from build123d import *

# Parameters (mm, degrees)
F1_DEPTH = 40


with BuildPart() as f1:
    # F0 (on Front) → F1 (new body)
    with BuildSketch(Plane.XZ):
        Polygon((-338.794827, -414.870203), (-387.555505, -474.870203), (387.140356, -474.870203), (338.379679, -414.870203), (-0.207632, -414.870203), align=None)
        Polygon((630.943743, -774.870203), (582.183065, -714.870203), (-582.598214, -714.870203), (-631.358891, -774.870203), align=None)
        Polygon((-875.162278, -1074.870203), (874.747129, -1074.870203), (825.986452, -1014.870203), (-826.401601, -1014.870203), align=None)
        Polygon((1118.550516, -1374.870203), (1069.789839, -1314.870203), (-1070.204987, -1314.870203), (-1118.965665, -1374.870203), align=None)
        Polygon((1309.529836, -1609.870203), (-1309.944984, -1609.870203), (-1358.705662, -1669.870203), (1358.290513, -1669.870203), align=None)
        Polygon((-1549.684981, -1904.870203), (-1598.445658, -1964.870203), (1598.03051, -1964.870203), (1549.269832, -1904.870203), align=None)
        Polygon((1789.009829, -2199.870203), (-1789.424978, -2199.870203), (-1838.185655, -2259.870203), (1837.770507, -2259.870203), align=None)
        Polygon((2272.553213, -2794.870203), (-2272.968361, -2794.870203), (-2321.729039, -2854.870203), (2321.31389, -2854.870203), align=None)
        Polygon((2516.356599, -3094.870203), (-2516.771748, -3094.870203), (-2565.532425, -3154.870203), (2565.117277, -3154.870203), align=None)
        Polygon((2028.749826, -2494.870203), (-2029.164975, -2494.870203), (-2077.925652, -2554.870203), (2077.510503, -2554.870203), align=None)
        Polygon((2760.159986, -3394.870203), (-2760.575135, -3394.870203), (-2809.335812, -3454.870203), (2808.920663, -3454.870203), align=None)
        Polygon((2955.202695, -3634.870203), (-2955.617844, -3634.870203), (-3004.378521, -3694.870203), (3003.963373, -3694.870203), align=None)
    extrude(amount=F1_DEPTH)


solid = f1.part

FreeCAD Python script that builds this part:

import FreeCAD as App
import Part
import Sketcher

V = App.Vector
Q = App.Units.Quantity

doc = App.newDocument("Part")
body = doc.addObject("PartDesign::Body", "Body")
body.AllowCompound = True

sketch1 = body.newObject("Sketcher::SketchObject", "Sketch")
sketch1.AttachmentSupport = (doc.getObject("XZ_Plane"), [""])
sketch1.MapMode = "FlatFace"
sketch1.addGeometry(Part.LineSegment(V(-339, -415, 0), V(-388, -475, 0)), False)
sketch1.addGeometry(Part.LineSegment(V(-388, -475, 0), V(387, -475, 0)), False)
sketch1.addGeometry(Part.LineSegment(V(387, -475, 0), V(338, -415, 0)), False)
sketch1.addGeometry(Part.LineSegment(V(338, -415, 0), V(-339, -415, 0)), False)
sketch1.addGeometry(Part.LineSegment(V(631, -775, 0), V(582, -715, 0)), False)
sketch1.addGeometry(Part.LineSegment(V(582, -715, 0), V(-583, -715, 0)), False)
sketch1.addGeometry(Part.LineSegment(V(-583, -715, 0), V(-631, -775, 0)), False)
sketch1.addGeometry(Part.LineSegment(V(-631, -775, 0), V(631, -775, 0)), False)
sketch1.addGeometry(Part.LineSegment(V(-875, -1075, 0), V(875, -1075, 0)), False)
sketch1.addGeometry(Part.LineSegment(V(875, -1075, 0), V(826, -1015, 0)), False)
sketch1.addGeometry(Part.LineSegment(V(826, -1015, 0), V(-826, -1015, 0)), False)
sketch1.addGeometry(Part.LineSegment(V(-826, -1015, 0), V(-875, -1075, 0)), False)
sketch1.addGeometry(Part.LineSegment(V(1119, -1375, 0), V(1070, -1315, 0)), False)
sketch1.addGeometry(Part.LineSegment(V(1070, -1315, 0), V(-1070, -1315, 0)), False)
sketch1.addGeometry(Part.LineSegment(V(-1070, -1315, 0), V(-1119, -1375, 0)), False)
sketch1.addGeometry(Part.LineSegment(V(-1119, -1375, 0), V(1119, -1375, 0)), False)
sketch1.addGeometry(Part.LineSegment(V(1310, -1610, 0), V(-1310, -1610, 0)), False)
sketch1.addGeometry(Part.LineSegment(V(-1310, -1610, 0), V(-1359, -1670, 0)), False)
sketch1.addGeometry(Part.LineSegment(V(-1359, -1670, 0), V(1358, -1670, 0)), False)
sketch1.addGeometry(Part.LineSegment(V(1358, -1670, 0), V(1310, -1610, 0)), False)
sketch1.addGeometry(Part.LineSegment(V(-1550, -1905, 0), V(-1598, -1965, 0)), False)
sketch1.addGeometry(Part.LineSegment(V(-1598, -1965, 0), V(1598, -1965, 0)), False)
sketch1.addGeometry(Part.LineSegment(V(1598, -1965, 0), V(1549, -1905, 0)), False)
sketch1.addGeometry(Part.LineSegment(V(1549, -1905, 0), V(-1550, -1905, 0)), False)
sketch1.addGeometry(Part.LineSegment(V(1789, -2200, 0), V(-1789, -2200, 0)), False)
sketch1.addGeometry(Part.LineSegment(V(-1789, -2200, 0), V(-1838, -2260, 0)), False)
sketch1.addGeometry(Part.LineSegment(V(-1838, -2260, 0), V(1838, -2260, 0)), False)
sketch1.addGeometry(Part.LineSegment(V(1838, -2260, 0), V(1789, -2200, 0)), False)
sketch1.addGeometry(Part.LineSegment(V(2273, -2795, 0), V(-2273, -2795, 0)), False)
sketch1.addGeometry(Part.LineSegment(V(-2273, -2795, 0), V(-2322, -2855, 0)), False)
sketch1.addGeometry(Part.LineSegment(V(-2322, -2855, 0), V(2321, -2855, 0)), False)
sketch1.addGeometry(Part.LineSegment(V(2321, -2855, 0), V(2273, -2795, 0)), False)
sketch1.addGeometry(Part.LineSegment(V(2516, -3095, 0), V(-2517, -3095, 0)), False)
sketch1.addGeometry(Part.LineSegment(V(-2517, -3095, 0), V(-2566, -3155, 0)), False)
sketch1.addGeometry(Part.LineSegment(V(-2566, -3155, 0), V(2565, -3155, 0)), False)
sketch1.addGeometry(Part.LineSegment(V(2565, -3155, 0), V(2516, -3095, 0)), False)
sketch1.addGeometry(Part.LineSegment(V(2029, -2495, 0), V(-2029, -2495, 0)), False)
sketch1.addGeometry(Part.LineSegment(V(-2029, -2495, 0), V(-2078, -2555, 0)), False)
sketch1.addGeometry(Part.LineSegment(V(-2078, -2555, 0), V(2078, -2555, 0)), False)
sketch1.addGeometry(Part.LineSegment(V(2078, -2555, 0), V(2029, -2495, 0)), False)
sketch1.addGeometry(Part.LineSegment(V(2760, -3395, 0), V(-2761, -3395, 0)), False)
sketch1.addGeometry(Part.LineSegment(V(-2761, -3395, 0), V(-2809, -3455, 0)), False)
sketch1.addGeometry(Part.LineSegment(V(-2809, -3455, 0), V(2809, -3455, 0)), False)
sketch1.addGeometry(Part.LineSegment(V(2809, -3455, 0), V(2760, -3395, 0)), False)
sketch1.addGeometry(Part.LineSegment(V(2955, -3635, 0), V(-2956, -3635, 0)), False)
sketch1.addGeometry(Part.LineSegment(V(-2956, -3635, 0), V(-3004, -3695, 0)), False)
sketch1.addGeometry(Part.LineSegment(V(-3004, -3695, 0), V(3004, -3695, 0)), False)
sketch1.addGeometry(Part.LineSegment(V(3004, -3695, 0), V(2955, -3635, 0)), False)
sketch1.addConstraint(Sketcher.Constraint("Coincident", 0, 2, 1, 1))
sketch1.addConstraint(Sketcher.Constraint("Coincident", 1, 2, 2, 1))
sketch1.addConstraint(Sketcher.Constraint("Coincident", 2, 2, 3, 1))
sketch1.addConstraint(Sketcher.Constraint("Coincident", 3, 2, 0, 1))
sketch1.addConstraint(Sketcher.Constraint("Coincident", 4, 2, 5, 1))
sketch1.addConstraint(Sketcher.Constraint("Coincident", 5, 2, 6, 1))
sketch1.addConstraint(Sketcher.Constraint("Coincident", 6, 2, 7, 1))
sketch1.addConstraint(Sketcher.Constraint("Coincident", 7, 2, 4, 1))
sketch1.addConstraint(Sketcher.Constraint("Coincident", 8, 2, 9, 1))
sketch1.addConstraint(Sketcher.Constraint("Coincident", 9, 2, 10, 1))
sketch1.addConstraint(Sketcher.Constraint("Coincident", 10, 2, 11, 1))
sketch1.addConstraint(Sketcher.Constraint("Coincident", 11, 2, 8, 1))
sketch1.addConstraint(Sketcher.Constraint("Coincident", 12, 2, 13, 1))
sketch1.addConstraint(Sketcher.Constraint("Coincident", 13, 2, 14, 1))
sketch1.addConstraint(Sketcher.Constraint("Coincident", 14, 2, 15, 1))
sketch1.addConstraint(Sketcher.Constraint("Coincident", 15, 2, 12, 1))
sketch1.addConstraint(Sketcher.Constraint("Coincident", 16, 2, 17, 1))
sketch1.addConstraint(Sketcher.Constraint("Coincident", 17, 2, 18, 1))
sketch1.addConstraint(Sketcher.Constraint("Coincident", 18, 2, 19, 1))
sketch1.addConstraint(Sketcher.Constraint("Coincident", 19, 2, 16, 1))
sketch1.addConstraint(Sketcher.Constraint("Coincident", 20, 2, 21, 1))
sketch1.addConstraint(Sketcher.Constraint("Coincident", 21, 2, 22, 1))
sketch1.addConstraint(Sketcher.Constraint("Coincident", 22, 2, 23, 1))
sketch1.addConstraint(Sketcher.Constraint("Coincident", 23, 2, 20, 1))
sketch1.addConstraint(Sketcher.Constraint("Coincident", 24, 2, 25, 1))
sketch1.addConstraint(Sketcher.Constraint("Coincident", 25, 2, 26, 1))
sketch1.addConstraint(Sketcher.Constraint("Coincident", 26, 2, 27, 1))
sketch1.addConstraint(Sketcher.Constraint("Coincident", 27, 2, 24, 1))
sketch1.addConstraint(Sketcher.Constraint("Coincident", 28, 2, 29, 1))
sketch1.addConstraint(Sketcher.Constraint("Coincident", 29, 2, 30, 1))
sketch1.addConstraint(Sketcher.Constraint("Coincident", 30, 2, 31, 1))
sketch1.addConstraint(Sketcher.Constraint("Coincident", 31, 2, 28, 1))
sketch1.addConstraint(Sketcher.Constraint("Coincident", 32, 2, 33, 1))
sketch1.addConstraint(Sketcher.Constraint("Coincident", 33, 2, 34, 1))
sketch1.addConstraint(Sketcher.Constraint("Coincident", 34, 2, 35, 1))
sketch1.addConstraint(Sketcher.Constraint("Coincident", 35, 2, 32, 1))
sketch1.addConstraint(Sketcher.Constraint("Coincident", 36, 2, 37, 1))
sketch1.addConstraint(Sketcher.Constraint("Coincident", 37, 2, 38, 1))
sketch1.addConstraint(Sketcher.Constraint("Coincident", 38, 2, 39, 1))
sketch1.addConstraint(Sketcher.Constraint("Coincident", 39, 2, 36, 1))
sketch1.addConstraint(Sketcher.Constraint("Coincident", 40, 2, 41, 1))
sketch1.addConstraint(Sketcher.Constraint("Coincident", 41, 2, 42, 1))
sketch1.addConstraint(Sketcher.Constraint("Coincident", 42, 2, 43, 1))
sketch1.addConstraint(Sketcher.Constraint("Coincident", 43, 2, 40, 1))
sketch1.addConstraint(Sketcher.Constraint("Coincident", 44, 2, 45, 1))
sketch1.addConstraint(Sketcher.Constraint("Coincident", 45, 2, 46, 1))
sketch1.addConstraint(Sketcher.Constraint("Coincident", 46, 2, 47, 1))
sketch1.addConstraint(Sketcher.Constraint("Coincident", 47, 2, 44, 1))
sketch1.addConstraint(Sketcher.Constraint("Horizontal", 1))
sketch1.addConstraint(Sketcher.Constraint("Horizontal", 3))
sketch1.addConstraint(Sketcher.Constraint("Horizontal", 5))
sketch1.addConstraint(Sketcher.Constraint("Horizontal", 7))
sketch1.addConstraint(Sketcher.Constraint("Horizontal", 8))
sketch1.addConstraint(Sketcher.Constraint("Horizontal", 10))
sketch1.addConstraint(Sketcher.Constraint("Horizontal", 13))
sketch1.addConstraint(Sketcher.Constraint("Horizontal", 15))
sketch1.addConstraint(Sketcher.Constraint("Horizontal", 16))
sketch1.addConstraint(Sketcher.Constraint("Horizontal", 18))
sketch1.addConstraint(Sketcher.Constraint("Horizontal", 21))
sketch1.addConstraint(Sketcher.Constraint("Horizontal", 23))
sketch1.addConstraint(Sketcher.Constraint("Horizontal", 24))
sketch1.addConstraint(Sketcher.Constraint("Horizontal", 26))
sketch1.addConstraint(Sketcher.Constraint("Horizontal", 28))
sketch1.addConstraint(Sketcher.Constraint("Horizontal", 30))
sketch1.addConstraint(Sketcher.Constraint("Horizontal", 32))
sketch1.addConstraint(Sketcher.Constraint("Horizontal", 34))
sketch1.addConstraint(Sketcher.Constraint("Horizontal", 36))
sketch1.addConstraint(Sketcher.Constraint("Horizontal", 38))
sketch1.addConstraint(Sketcher.Constraint("Horizontal", 40))
sketch1.addConstraint(Sketcher.Constraint("Horizontal", 42))
sketch1.addConstraint(Sketcher.Constraint("Horizontal", 44))
sketch1.addConstraint(Sketcher.Constraint("Horizontal", 46))
sketch1.addConstraint(Sketcher.Constraint("Parallel", 2, 4))
sketch1.addConstraint(Sketcher.Constraint("Parallel", 0, 6))
sketch1.addConstraint(Sketcher.Constraint("Parallel", 4, 9))
sketch1.addConstraint(Sketcher.Constraint("Parallel", 6, 11))
sketch1.addConstraint(Sketcher.Constraint("Parallel", 9, 12))
sketch1.addConstraint(Sketcher.Constraint("Parallel", 11, 14))
sketch1.addConstraint(Sketcher.Constraint("Parallel", 14, 17))
sketch1.addConstraint(Sketcher.Constraint("Parallel", 12, 19))
sketch1.addConstraint(Sketcher.Constraint("Parallel", 17, 20))
sketch1.addConstraint(Sketcher.Constraint("Parallel", 19, 22))
sketch1.addConstraint(Sketcher.Constraint("Parallel", 20, 25))
sketch1.addConstraint(Sketcher.Constraint("Parallel", 22, 27))
sketch1.addConstraint(Sketcher.Constraint("Parallel", 25, 29))
sketch1.addConstraint(Sketcher.Constraint("Parallel", 27, 31))
sketch1.addConstraint(Sketcher.Constraint("Parallel", 29, 33))
sketch1.addConstraint(Sketcher.Constraint("Parallel", 31, 35))
sketch1.addConstraint(Sketcher.Constraint("Parallel", 33, 37))
sketch1.addConstraint(Sketcher.Constraint("Parallel", 35, 39))
sketch1.addConstraint(Sketcher.Constraint("Parallel", 37, 41))
sketch1.addConstraint(Sketcher.Constraint("Parallel", 39, 43))
sketch1.addConstraint(Sketcher.Constraint("Parallel", 41, 45))
sketch1.addConstraint(Sketcher.Constraint("Parallel", 43, 47))
sketch1.addConstraint(Sketcher.Constraint("Equal", 0, 2))
sketch1.addConstraint(Sketcher.Constraint("Equal", 2, 4))
sketch1.addConstraint(Sketcher.Constraint("Equal", 6, 9))
sketch1.addConstraint(Sketcher.Constraint("Equal", 11, 12))
sketch1.addConstraint(Sketcher.Constraint("Equal", 14, 17))
sketch1.addConstraint(Sketcher.Constraint("Equal", 19, 20))
sketch1.addConstraint(Sketcher.Constraint("Equal", 22, 25))
sketch1.addConstraint(Sketcher.Constraint("Equal", 27, 29))
sketch1.addConstraint(Sketcher.Constraint("Equal", 31, 33))
sketch1.addConstraint(Sketcher.Constraint("Equal", 35, 37))
sketch1.addConstraint(Sketcher.Constraint("Equal", 39, 41))
sketch1.addConstraint(Sketcher.Constraint("Equal", 43, 45))
sketch1.addConstraint(Sketcher.Constraint("Angle", 0, Q("-129.1 deg")))
sketch1.addConstraint(Sketcher.Constraint("DistanceY", 1, 2, 2, 2, Q("60 mm")))
sketch1.addConstraint(Sketcher.Constraint("DistanceY", 4, 2, 1, 2, Q("240 mm")))
sketch1.addConstraint(Sketcher.Constraint("DistanceY", 8, 2, 7, 2, Q("300 mm")))
sketch1.addConstraint(Sketcher.Constraint("DistanceY", 12, 2, 8, 2, Q("240 mm")))
sketch1.addConstraint(Sketcher.Constraint("DistanceY", 16, 2, 14, 2, Q("235 mm")))
sketch1.addConstraint(Sketcher.Constraint("DistanceY", 20, 2, 17, 2, Q("295 mm")))
sketch1.addConstraint(Sketcher.Constraint("DistanceY", 24, 2, 20, 2, Q("235 mm")))
sketch1.addConstraint(Sketcher.Constraint("DistanceY", 28, 2, 25, 2, Q("535 mm")))
sketch1.addConstraint(Sketcher.Constraint("DistanceY", 32, 2, 29, 2, Q("240 mm")))
sketch1.addConstraint(Sketcher.Constraint("DistanceY", 36, 2, 25, 2, Q("235 mm")))
sketch1.addConstraint(Sketcher.Constraint("DistanceY", 40, 2, 33, 2, Q("240 mm")))
sketch1.addConstraint(Sketcher.Constraint("DistanceY", 44, 2, 41, 2, Q("180 mm")))
sketch1.addConstraint(Sketcher.Constraint("DistanceX", 34, 1, 34, 2, Q("5130.649702 mm")))
sketch1.addConstraint(Sketcher.Constraint("DistanceX", 36, 2, 36, 1, Q("4057.914801 mm")))
sketch1.addConstraint(Sketcher.Constraint("DistanceX", 1, 1, 1, 2, Q("774.695861 mm")))
sketch1.addConstraint(Sketcher.Constraint("DistanceX", 5, 2, 5, 1, Q("1164.781279 mm")))
sketch1.addConstraint(Sketcher.Constraint("DistanceX", 15, 1, 15, 2, Q("2237.516181 mm")))
sketch1.addConstraint(Sketcher.Constraint("DistanceX", 16, 2, 16, 1, Q("2619.47482 mm")))
sketch1.addConstraint(Sketcher.Constraint("DistanceX", 21, 1, 21, 2, Q("3196.476168 mm")))
sketch1.addConstraint(Sketcher.Constraint("DistanceX", 26, 1, 26, 2, Q("3675.956162 mm")))
sketch1.addConstraint(Sketcher.Constraint("DistanceX", 30, 1, 30, 2, Q("4643.042929 mm")))
sketch1.addConstraint(Sketcher.Constraint("DistanceX", 40, 2, 40, 1, Q("5520.735121 mm")))
sketch1.addConstraint(Sketcher.Constraint("DistanceX", 44, 2, 44, 1, Q("5910.820539 mm")))
sketch1.addConstraint(Sketcher.Constraint("DistanceX", 10, 2, -1, 1, Q("826.401601 mm")))
sketch1.addConstraint(Sketcher.Constraint("DistanceX", -1, 1, 35, 2, Q("2516.356599 mm")))
sketch1.addConstraint(Sketcher.Constraint("DistanceX", 28, 2, 17, 2, Q("914.262699 mm")))
sketch1.addConstraint(Sketcher.Constraint("DistanceX", 8, 1, 8, 2, Q("1749.909407 mm")))
sketch1.addConstraint(Sketcher.Constraint("DistanceX", -1, 1, 2, 2, Q("338.379679 mm")))
sketch1.addConstraint(Sketcher.Constraint("DistanceX", 6, 2, -1, 1, Q("631.358891 mm")))
sketch1.addConstraint(Sketcher.Constraint("DistanceX", -1, 1, 12, 2, Q("1069.789839 mm")))
sketch1.addConstraint(Sketcher.Constraint("DistanceX", 17, 2, -1, 1, Q("1358.705662 mm")))
sketch1.addConstraint(Sketcher.Constraint("DistanceX", 20, 2, -1, 1, Q("1598.445658 mm")))
sketch1.addConstraint(Sketcher.Constraint("DistanceX", 24, 2, -1, 1, Q("1789.424978 mm")))
sketch1.addConstraint(Sketcher.Constraint("DistanceX", 37, 2, -1, 1, Q("2077.925652 mm")))
sketch1.addConstraint(Sketcher.Constraint("DistanceX", 41, 2, -1, 1, Q("2809.335812 mm")))
sketch1.addConstraint(Sketcher.Constraint("DistanceX", 45, 2, -1, 1, Q("3004.378521 mm")))
sketch1.addConstraint(Sketcher.Constraint("DistanceY", 0, 2, -1, 1, Q("474.870203 mm")))
pad1 = body.newObject("PartDesign::Pad", "Pad")
pad1.Profile = sketch1
pad1.Length = 40

doc.recompute()
